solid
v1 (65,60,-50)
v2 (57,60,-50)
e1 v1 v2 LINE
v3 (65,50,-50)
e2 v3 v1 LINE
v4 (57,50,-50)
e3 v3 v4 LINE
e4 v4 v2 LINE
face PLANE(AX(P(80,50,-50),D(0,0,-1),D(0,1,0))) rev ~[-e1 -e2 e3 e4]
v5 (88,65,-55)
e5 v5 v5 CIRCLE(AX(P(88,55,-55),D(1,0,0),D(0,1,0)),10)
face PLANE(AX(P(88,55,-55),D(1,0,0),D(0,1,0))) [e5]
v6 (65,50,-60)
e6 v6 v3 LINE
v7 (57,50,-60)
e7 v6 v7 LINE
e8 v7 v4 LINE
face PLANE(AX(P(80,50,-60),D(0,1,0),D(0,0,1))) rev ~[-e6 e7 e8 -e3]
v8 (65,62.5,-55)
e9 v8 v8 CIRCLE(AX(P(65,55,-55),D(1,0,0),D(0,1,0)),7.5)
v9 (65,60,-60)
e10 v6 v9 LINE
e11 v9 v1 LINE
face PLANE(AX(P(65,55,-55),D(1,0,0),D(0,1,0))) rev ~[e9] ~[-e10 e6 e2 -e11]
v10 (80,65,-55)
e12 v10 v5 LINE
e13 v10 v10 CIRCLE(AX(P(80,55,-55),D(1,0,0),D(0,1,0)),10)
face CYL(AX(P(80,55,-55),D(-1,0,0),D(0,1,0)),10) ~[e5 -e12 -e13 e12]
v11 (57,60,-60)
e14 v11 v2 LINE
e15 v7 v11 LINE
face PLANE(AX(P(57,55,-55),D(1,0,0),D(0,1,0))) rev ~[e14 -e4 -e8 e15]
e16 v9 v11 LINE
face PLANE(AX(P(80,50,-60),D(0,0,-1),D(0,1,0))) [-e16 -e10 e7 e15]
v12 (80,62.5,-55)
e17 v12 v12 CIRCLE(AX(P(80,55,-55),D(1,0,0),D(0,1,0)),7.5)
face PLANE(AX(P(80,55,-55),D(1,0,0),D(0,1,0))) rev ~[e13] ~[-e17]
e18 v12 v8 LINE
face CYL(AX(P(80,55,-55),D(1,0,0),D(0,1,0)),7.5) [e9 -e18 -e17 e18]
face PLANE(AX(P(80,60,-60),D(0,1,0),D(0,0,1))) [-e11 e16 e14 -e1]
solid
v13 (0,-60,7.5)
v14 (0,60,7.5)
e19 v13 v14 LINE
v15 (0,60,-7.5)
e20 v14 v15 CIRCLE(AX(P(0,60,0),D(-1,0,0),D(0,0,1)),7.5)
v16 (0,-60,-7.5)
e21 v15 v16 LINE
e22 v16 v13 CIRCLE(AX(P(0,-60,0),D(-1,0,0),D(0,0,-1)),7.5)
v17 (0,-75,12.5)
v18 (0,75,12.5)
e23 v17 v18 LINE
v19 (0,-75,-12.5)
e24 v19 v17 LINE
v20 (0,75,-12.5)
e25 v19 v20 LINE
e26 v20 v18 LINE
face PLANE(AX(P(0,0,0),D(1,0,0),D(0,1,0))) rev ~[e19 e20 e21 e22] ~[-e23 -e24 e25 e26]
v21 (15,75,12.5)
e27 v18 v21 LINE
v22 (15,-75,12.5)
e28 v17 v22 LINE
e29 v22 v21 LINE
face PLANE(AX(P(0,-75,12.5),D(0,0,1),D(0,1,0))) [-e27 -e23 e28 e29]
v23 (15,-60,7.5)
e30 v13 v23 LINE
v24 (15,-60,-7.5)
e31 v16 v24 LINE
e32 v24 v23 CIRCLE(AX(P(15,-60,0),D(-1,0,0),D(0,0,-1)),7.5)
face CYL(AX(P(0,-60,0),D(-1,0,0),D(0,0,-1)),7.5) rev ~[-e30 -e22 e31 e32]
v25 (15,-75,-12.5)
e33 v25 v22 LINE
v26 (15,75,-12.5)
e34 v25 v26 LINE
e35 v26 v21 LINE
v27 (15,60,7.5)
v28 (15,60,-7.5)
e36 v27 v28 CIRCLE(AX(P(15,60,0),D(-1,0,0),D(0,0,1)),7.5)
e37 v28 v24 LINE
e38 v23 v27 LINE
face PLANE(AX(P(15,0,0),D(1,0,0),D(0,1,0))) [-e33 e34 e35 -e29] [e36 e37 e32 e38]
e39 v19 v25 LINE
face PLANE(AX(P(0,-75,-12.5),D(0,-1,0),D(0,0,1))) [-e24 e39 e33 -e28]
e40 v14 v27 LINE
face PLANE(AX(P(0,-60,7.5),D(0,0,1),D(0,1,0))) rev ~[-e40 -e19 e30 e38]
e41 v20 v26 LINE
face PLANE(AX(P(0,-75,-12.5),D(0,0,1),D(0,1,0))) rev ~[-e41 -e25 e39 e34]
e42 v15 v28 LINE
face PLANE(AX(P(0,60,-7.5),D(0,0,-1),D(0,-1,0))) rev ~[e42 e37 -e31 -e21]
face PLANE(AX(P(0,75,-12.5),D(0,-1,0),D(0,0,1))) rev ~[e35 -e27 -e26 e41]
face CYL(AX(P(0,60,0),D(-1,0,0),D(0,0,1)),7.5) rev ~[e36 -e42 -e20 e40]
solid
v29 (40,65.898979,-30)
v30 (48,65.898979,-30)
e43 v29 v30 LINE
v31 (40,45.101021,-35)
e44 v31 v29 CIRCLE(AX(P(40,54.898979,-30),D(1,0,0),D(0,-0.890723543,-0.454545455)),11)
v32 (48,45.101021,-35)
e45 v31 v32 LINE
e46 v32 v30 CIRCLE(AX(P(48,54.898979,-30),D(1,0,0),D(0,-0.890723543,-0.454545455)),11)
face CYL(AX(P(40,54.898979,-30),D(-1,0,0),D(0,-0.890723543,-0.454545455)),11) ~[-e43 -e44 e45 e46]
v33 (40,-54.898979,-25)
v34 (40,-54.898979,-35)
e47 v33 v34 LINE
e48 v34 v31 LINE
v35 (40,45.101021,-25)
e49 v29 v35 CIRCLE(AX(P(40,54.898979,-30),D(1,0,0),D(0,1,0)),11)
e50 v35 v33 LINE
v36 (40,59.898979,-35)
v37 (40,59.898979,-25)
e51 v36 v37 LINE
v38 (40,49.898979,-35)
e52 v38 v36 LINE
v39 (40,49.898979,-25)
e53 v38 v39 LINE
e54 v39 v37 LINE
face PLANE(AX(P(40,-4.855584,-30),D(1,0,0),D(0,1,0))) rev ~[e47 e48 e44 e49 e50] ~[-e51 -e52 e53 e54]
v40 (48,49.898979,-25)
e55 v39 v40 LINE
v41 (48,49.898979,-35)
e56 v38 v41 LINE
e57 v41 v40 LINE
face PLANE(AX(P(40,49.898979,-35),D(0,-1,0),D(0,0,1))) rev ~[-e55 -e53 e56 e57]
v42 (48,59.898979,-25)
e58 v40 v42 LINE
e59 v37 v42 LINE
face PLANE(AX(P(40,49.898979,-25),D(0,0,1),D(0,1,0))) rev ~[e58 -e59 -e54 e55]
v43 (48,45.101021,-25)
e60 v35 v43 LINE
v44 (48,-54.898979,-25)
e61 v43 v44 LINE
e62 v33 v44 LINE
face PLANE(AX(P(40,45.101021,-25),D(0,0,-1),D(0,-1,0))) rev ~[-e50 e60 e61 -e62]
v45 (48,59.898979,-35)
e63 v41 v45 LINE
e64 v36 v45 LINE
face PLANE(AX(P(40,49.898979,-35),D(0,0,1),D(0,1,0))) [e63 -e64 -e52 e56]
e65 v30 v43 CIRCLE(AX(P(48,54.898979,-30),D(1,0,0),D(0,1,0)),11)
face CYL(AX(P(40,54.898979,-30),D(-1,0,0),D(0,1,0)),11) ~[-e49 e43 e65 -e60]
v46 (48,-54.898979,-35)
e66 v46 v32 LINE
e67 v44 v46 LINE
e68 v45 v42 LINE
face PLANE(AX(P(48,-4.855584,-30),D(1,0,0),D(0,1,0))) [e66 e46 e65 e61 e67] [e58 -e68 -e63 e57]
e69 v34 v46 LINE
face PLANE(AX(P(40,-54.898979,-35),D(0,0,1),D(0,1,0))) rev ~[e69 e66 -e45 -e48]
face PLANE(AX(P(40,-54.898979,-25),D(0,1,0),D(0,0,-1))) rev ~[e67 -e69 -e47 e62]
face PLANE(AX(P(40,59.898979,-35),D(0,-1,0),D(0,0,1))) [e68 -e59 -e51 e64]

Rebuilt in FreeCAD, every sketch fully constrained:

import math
import FreeCAD as App
import Part
import Sketcher


def add_polygon(sketch, points):
    """Adds a closed chain of lines whose ends are joined by coincident constraints."""
    first, n = sketch.GeometryCount, len(points)
    for a, b in zip(points, points[1:] + points[:1]):
        sketch.addGeometry(Part.LineSegment(App.Vector(*a, 0), App.Vector(*b, 0)), False)
    for i in range(n):
        sketch.addConstraint(Sketcher.Constraint("Coincident", first + i, 2, first + (i + 1) % n, 1))

doc = App.newDocument("Part")
params = doc.addObject("Spreadsheet::Sheet", "Params")
for row, (alias, value) in enumerate([
    ("sketch1_radius", "7.5 mm"),
    ("sketch1_width", "150 mm"),
    ("sketch1_width2", "120 mm"),
    ("sketch1_height", "25 mm"),
    ("pad1_length", "15 mm"),
    ("sketch2_radius", "11 mm"),
    ("sketch2_width", "100 mm"),
    ("sketch2_width2", "10 mm"),
    ("pad2_length", "8 mm"),
    ("sketch3_diameter", "20 mm"),
    ("pad3_length", "8 mm"),
    ("sketch4_diameter", "15 mm"),
    ("pad4_length", "15 mm"),
    ("sketch5_width", "10 mm"),
    ("pad5_length", "23 mm"),
], start=1):
    params.set(f"A{row}", alias)
    params.set(f"B{row}", "=" + value)
    params.setAlias(f"B{row}", alias)

body = doc.addObject("PartDesign::Body", "Body")

# Sketch on YZ plane
sketch1 = body.newObject("Sketcher::SketchObject", "Sketch")
sketch1.AttachmentSupport = (doc.getObject("YZ_Plane"), [""])
sketch1.MapMode = "FlatFace"
add_polygon(sketch1, [(-75, 12), (-75, -12), (75, -12), (75, 12)])  # lines 0-3
sketch1.addGeometry(Part.ArcOfCircle(Part.Circle(App.Vector(-60, 0, 0), App.Vector(0, 0, 1), 8), math.radians(90), math.radians(270)), False)  # 4
sketch1.addGeometry(Part.LineSegment(App.Vector(-60, 8, 0), App.Vector(60, 8, 0)), False)  # 5
sketch1.addGeometry(Part.ArcOfCircle(Part.Circle(App.Vector(60, 0, 0), App.Vector(0, 0, 1), 8), math.radians(-90), math.radians(90)), False)  # 6
sketch1.addGeometry(Part.LineSegment(App.Vector(60, -8, 0), App.Vector(-60, -8, 0)), False)  # 7
sketch1.addConstraint([
    Sketcher.Constraint("Tangent", 4, 1, 5, 1),
    Sketcher.Constraint("Tangent", 5, 2, 6, 2),
    Sketcher.Constraint("Tangent", 6, 1, 7, 1),
    Sketcher.Constraint("Tangent", 7, 2, 4, 2),
    Sketcher.Constraint("Vertical", 0),
    Sketcher.Constraint("Horizontal", 1),
    Sketcher.Constraint("Vertical", 2),
    Sketcher.Constraint("Horizontal", 3),
    Sketcher.Constraint("Horizontal", 5),
    Sketcher.Constraint("Horizontal", 7),
    Sketcher.Constraint("Symmetric", 4, 3, 6, 3, -1, 1),
    Sketcher.Constraint("Symmetric", 0, 2, 2, 2, -1, 1),
    Sketcher.Constraint("Radius", 4, 7.5),
    Sketcher.Constraint("DistanceX", 1, 1, 1, 2, 150.0),
    Sketcher.Constraint("DistanceX", 5, 1, 5, 2, 120.0),
    Sketcher.Constraint("DistanceY", 0, 2, 0, 1, 25.0),
])
sketch1.setExpression("Constraints[16]", "Params.sketch1_radius")
sketch1.setExpression("Constraints[17]", "Params.sketch1_width")
sketch1.setExpression("Constraints[18]", "Params.sketch1_width2")
sketch1.setExpression("Constraints[19]", "Params.sketch1_height")
pad1 = body.newObject("PartDesign::Pad", "Pad")
pad1.Profile = sketch1
pad1.setExpression("Length", "Params.pad1_length")
body2 = doc.addObject("PartDesign::Body", "Body001")

# Sketch on YZ plane
sketch2 = body2.newObject("Sketcher::SketchObject", "Sketch001")
sketch2.AttachmentSupport = (doc.getObject("YZ_Plane001"), [""])
sketch2.MapMode = "FlatFace"
sketch2.AttachmentOffset = App.Placement(App.Vector(0, 0, 40), App.Rotation())
sketch2.addGeometry(Part.LineSegment(App.Vector(45, -25, 0), App.Vector(-55, -25, 0)), False)  # 0
sketch2.addGeometry(Part.LineSegment(App.Vector(-55, -25, 0), App.Vector(-55, -35, 0)), False)  # 1
sketch2.addGeometry(Part.LineSegment(App.Vector(-55, -35, 0), App.Vector(45, -35, 0)), False)  # 2
sketch2.addGeometry(Part.ArcOfCircle(Part.Circle(App.Vector(55, -30, 0), App.Vector(0, 0, 1), 11), math.radians(-153), math.radians(0)), False)  # 3
sketch2.addGeometry(Part.ArcOfCircle(Part.Circle(App.Vector(55, -30, 0), App.Vector(0, 0, 1), 11), math.radians(0), math.radians(153)), False)  # 4
add_polygon(sketch2, [(60, -35), (50, -35), (50, -25), (60, -25)])  # lines 5-8
sketch2.addConstraint([
    Sketcher.Constraint("Coincident", 0, 2, 1, 1),
    Sketcher.Constraint("Coincident", 1, 2, 2, 1),
    Sketcher.Constraint("Coincident", 2, 2, 3, 1),
    Sketcher.Constraint("Tangent", 3, 2, 4, 1),
    Sketcher.Constraint("Coincident", 4, 2, 0, 1),
    Sketcher.Constraint("Horizontal", 0),
    Sketcher.Constraint("Vertical", 1),
    Sketcher.Constraint("Horizontal", 2),
    Sketcher.Constraint("Horizontal", 5),
    Sketcher.Constraint("Vertical", 6),
    Sketcher.Constraint("Horizontal", 7),
    Sketcher.Constraint("Vertical", 8),
    Sketcher.Constraint("Equal", 3, 4),
    Sketcher.Constraint("Horizontal", 4, 3, 3, 2),
    Sketcher.Constraint("Horizontal", 2, 2, 5, 2),
    Sketcher.Constraint("Horizontal", 4, 2, 6, 2),
    Sketcher.Constraint("Vertical", 2, 2, 4, 2),
    Sketcher.Constraint("Equal", 7, 1),
    Sketcher.Constraint("Radius", 3, 11.0),
    Sketcher.Constraint("DistanceX", 0, 2, 0, 1, 100.0),
    Sketcher.Constraint("DistanceX", 5, 2, 5, 1, 10.0),
    Sketcher.Constraint("DistanceY", 3, 3, -1, 1, 30.0),
    Sketcher.Constraint("DistanceX", 5, 2, 3, 3, 5.0),
    Sketcher.Constraint("DistanceX", -1, 1, 3, 3, 54.898979),
])
sketch2.setExpression("Constraints[22]", "Params.sketch2_radius")
sketch2.setExpression("Constraints[23]", "Params.sketch2_width")
sketch2.setExpression("Constraints[24]", "Params.sketch2_width2")
pad2 = body2.newObject("PartDesign::Pad", "Pad001")
pad2.Profile = sketch2
pad2.setExpression("Length", "Params.pad2_length")
body3 = doc.addObject("PartDesign::Body", "Body002")

# Sketch on YZ plane
sketch3 = body3.newObject("Sketcher::SketchObject", "Sketch002")
sketch3.AttachmentSupport = (doc.getObject("YZ_Plane002"), [""])
sketch3.MapMode = "FlatFace"
sketch3.AttachmentOffset = App.Placement(App.Vector(0, 0, 80), App.Rotation())
sketch3.addGeometry(Part.Circle(App.Vector(55, -55, 0), App.Vector(0, 0, 1), 10), False)
sketch3.addConstraint([
    Sketcher.Constraint("Diameter", 0, 20.0),
    Sketcher.Constraint("DistanceX", -1, 1, 0, 3, 55.0),
    Sketcher.Constraint("DistanceY", 0, 3, -1, 1, 55.0),
])
sketch3.setExpression("Constraints[0]", "Params.sketch3_diameter")
pad3 = body3.newObject("PartDesign::Pad", "Pad002")
pad3.Profile = sketch3
pad3.setExpression("Length", "Params.pad3_length")

# Sketch on YZ plane
sketch4 = body3.newObject("Sketcher::SketchObject", "Sketch003")
sketch4.AttachmentSupport = (doc.getObject("YZ_Plane002"), [""])
sketch4.MapMode = "FlatFace"
sketch4.AttachmentOffset = App.Placement(App.Vector(0, 0, 80), App.Rotation())
sketch4.addGeometry(Part.Circle(App.Vector(55, -55, 0), App.Vector(0, 0, 1), 8), False)
sketch4.addConstraint([
    Sketcher.Constraint("Diameter", 0, 15.0),
    Sketcher.Constraint("DistanceX", -1, 1, 0, 3, 55.0),
    Sketcher.Constraint("DistanceY", 0, 3, -1, 1, 55.0),
])
sketch4.setExpression("Constraints[0]", "Params.sketch4_diameter")
pad4 = body3.newObject("PartDesign::Pad", "Pad003")
pad4.Profile = sketch4
pad4.setExpression("Length", "Params.pad4_length")
pad4.Reversed = True

# Sketch on YZ plane
sketch5 = body3.newObject("Sketcher::SketchObject", "Sketch004")
sketch5.AttachmentSupport = (doc.getObject("YZ_Plane002"), [""])
sketch5.MapMode = "FlatFace"
sketch5.AttachmentOffset = App.Placement(App.Vector(0, 0, 80), App.Rotation())
add_polygon(sketch5, [(50, -50), (50, -60), (60, -60), (60, -50)])  # lines 0-3
sketch5.addConstraint([
    Sketcher.Constraint("Vertical", 0),
    Sketcher.Constraint("Horizontal", 1),
    Sketcher.Constraint("Vertical", 2),
    Sketcher.Constraint("Horizontal", 3),
    Sketcher.Constraint("Equal", 3, 0),
    Sketcher.Constraint("DistanceX", 1, 1, 1, 2, 10.0),
    Sketcher.Constraint("DistanceX", -1, 1, 0, 2, 50.0),
    Sketcher.Constraint("DistanceY", 0, 2, -1, 1, 60.0),
])
sketch5.setExpression("Constraints[9]", "Params.sketch5_width")
pad5 = body3.newObject("PartDesign::Pad", "Pad004")
pad5.Profile = sketch5
pad5.setExpression("Length", "Params.pad5_length")
pad5.Reversed = True

doc.recompute()
